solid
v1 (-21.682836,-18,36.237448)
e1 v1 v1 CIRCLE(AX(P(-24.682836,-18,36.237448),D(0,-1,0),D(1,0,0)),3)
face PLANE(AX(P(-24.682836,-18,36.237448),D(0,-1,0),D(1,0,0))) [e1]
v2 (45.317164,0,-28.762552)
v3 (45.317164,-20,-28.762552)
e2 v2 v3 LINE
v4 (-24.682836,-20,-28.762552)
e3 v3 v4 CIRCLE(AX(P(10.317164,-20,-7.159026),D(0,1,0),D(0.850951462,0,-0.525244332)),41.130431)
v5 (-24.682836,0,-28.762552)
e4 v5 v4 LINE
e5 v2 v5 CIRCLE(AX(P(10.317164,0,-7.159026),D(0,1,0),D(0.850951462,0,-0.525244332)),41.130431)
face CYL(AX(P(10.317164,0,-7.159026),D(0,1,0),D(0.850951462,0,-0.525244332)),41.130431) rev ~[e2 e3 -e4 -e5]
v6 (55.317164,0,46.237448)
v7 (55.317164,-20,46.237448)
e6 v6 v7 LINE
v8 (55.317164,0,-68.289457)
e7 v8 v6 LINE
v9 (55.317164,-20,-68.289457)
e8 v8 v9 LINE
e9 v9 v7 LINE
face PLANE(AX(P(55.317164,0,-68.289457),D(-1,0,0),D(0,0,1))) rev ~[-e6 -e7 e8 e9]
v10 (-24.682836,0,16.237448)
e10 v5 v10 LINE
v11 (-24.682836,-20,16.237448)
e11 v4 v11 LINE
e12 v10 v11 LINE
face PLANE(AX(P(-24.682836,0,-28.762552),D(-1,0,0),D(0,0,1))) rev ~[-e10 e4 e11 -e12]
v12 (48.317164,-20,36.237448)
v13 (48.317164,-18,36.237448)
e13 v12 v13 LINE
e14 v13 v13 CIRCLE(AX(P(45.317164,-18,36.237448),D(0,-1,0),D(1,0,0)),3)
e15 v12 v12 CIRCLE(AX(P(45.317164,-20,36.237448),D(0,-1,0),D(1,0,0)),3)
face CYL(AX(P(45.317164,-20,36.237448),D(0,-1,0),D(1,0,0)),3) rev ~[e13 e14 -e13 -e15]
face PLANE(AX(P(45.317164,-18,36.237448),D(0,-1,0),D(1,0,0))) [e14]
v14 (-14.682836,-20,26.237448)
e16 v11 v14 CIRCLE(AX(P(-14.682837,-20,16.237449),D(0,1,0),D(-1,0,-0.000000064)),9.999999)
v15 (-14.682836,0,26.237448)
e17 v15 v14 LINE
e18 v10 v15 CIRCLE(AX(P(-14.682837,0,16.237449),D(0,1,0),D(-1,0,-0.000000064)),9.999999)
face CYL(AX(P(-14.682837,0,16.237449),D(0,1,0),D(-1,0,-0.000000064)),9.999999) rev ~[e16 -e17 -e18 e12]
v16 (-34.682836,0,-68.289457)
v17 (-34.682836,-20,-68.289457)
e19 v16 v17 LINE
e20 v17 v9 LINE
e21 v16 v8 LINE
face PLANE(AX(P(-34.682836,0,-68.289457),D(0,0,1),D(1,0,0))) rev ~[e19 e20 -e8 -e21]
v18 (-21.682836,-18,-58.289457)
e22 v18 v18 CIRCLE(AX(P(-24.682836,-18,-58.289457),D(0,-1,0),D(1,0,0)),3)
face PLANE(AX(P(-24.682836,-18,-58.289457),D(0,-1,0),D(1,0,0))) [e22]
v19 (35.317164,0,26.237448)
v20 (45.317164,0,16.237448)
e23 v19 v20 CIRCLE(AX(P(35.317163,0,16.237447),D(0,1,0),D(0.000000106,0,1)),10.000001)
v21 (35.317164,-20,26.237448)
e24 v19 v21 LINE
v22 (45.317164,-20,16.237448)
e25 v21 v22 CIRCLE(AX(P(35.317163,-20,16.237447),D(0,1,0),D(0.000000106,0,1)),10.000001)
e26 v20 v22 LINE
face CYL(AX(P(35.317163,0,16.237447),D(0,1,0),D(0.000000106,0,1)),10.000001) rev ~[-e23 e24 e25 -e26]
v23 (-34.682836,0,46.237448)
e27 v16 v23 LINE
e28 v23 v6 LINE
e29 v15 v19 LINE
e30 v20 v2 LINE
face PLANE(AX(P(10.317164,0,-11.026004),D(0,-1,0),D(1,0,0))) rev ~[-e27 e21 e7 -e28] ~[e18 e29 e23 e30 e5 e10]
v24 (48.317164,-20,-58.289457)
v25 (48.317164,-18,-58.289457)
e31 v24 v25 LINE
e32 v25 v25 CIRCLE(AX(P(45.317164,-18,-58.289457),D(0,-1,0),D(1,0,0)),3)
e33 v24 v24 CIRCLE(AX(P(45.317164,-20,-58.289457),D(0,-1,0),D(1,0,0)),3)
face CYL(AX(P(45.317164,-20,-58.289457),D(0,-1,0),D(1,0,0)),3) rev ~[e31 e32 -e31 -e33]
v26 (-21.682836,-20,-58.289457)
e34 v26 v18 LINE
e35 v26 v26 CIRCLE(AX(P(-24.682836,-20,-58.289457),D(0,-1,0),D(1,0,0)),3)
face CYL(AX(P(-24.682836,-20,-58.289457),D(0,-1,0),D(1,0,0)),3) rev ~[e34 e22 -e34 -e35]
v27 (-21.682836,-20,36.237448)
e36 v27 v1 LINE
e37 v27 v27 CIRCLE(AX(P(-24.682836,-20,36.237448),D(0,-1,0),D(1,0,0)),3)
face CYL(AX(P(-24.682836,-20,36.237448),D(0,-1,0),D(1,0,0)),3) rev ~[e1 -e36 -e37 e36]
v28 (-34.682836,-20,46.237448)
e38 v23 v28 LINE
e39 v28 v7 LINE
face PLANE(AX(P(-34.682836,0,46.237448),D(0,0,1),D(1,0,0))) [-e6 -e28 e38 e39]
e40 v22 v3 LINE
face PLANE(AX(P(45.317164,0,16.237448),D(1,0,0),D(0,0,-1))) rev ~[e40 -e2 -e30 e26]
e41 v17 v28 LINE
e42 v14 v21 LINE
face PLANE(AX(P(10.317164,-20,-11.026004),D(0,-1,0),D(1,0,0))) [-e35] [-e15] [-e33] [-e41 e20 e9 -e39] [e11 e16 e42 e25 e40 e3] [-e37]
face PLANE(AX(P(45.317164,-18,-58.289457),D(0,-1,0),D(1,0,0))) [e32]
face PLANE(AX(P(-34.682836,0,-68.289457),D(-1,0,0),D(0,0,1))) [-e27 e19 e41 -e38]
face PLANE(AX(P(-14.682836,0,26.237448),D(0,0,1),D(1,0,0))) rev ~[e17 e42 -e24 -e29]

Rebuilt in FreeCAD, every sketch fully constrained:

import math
import FreeCAD as App
import Part
import Sketcher

doc = App.newDocument("Part")
params = doc.addObject("Spreadsheet::Sheet", "Params")
for row, (alias, value) in enumerate([
    ("sketch1_radius", "9.999999 mm"),
    ("sketch1_width", "90 mm"),
    ("sketch1_width2", "50 mm"),
    ("sketch1_height", "45 mm"),
    ("pad1_length", "20 mm"),
    ("sketch2_diameter", "6 mm"),
    ("pocket1_length", "2 mm"),
], start=1):
    params.set(f"A{row}", alias)
    params.set(f"B{row}", "=" + value)
    params.setAlias(f"B{row}", alias)

body = doc.addObject("PartDesign::Body", "Body")

# Sketch on XZ plane
sketch1 = doc.addObject("Sketcher::SketchObject", "Sketch")
body.addObject(sketch1)
sketch1.AttachmentSupport = (doc.XZ_Plane, [""])
sketch1.MapMode = "FlatFace"
sketch1.addGeometry([
    Part.LineSegment(App.Vector(-35, 46, 0), App.Vector(-35, -68, 0)),  # 0
    Part.LineSegment(App.Vector(-35, -68, 0), App.Vector(55, -68, 0)),  # 1
    Part.LineSegment(App.Vector(55, -68, 0), App.Vector(55, 46, 0)),  # 2
    Part.LineSegment(App.Vector(55, 46, 0), App.Vector(-35, 46, 0)),  # 3
    Part.LineSegment(App.Vector(-25, -29, 0), App.Vector(-25, 16, 0)),  # 4
    Part.ArcOfCircle(Part.Circle(App.Vector(-15, 16, 0), App.Vector(0, 0, 1), 10), math.radians(90), math.radians(180)),  # 5
    Part.LineSegment(App.Vector(-15, 26, 0), App.Vector(35, 26, 0)),  # 6
    Part.ArcOfCircle(Part.Circle(App.Vector(35, 16, 0), App.Vector(0, 0, 1), 10), math.radians(0), math.radians(90)),  # 7
    Part.LineSegment(App.Vector(45, 16, 0), App.Vector(45, -29, 0)),  # 8
    Part.ArcOfCircle(Part.Circle(App.Vector(10, -7, 0), App.Vector(0, 0, 1), 41), math.radians(-148), math.radians(-32)),  # 9
], False)
sketch1.addConstraint([
    Sketcher.Constraint("Coincident", 0, 2, 1, 1),
    Sketcher.Constraint("Coincident", 1, 2, 2, 1),
    Sketcher.Constraint("Coincident", 2, 2, 3, 1),
    Sketcher.Constraint("Coincident", 3, 2, 0, 1),
    Sketcher.Constraint("Tangent", 4, 2, 5, 2),
    Sketcher.Constraint("Tangent", 5, 1, 6, 1),
    Sketcher.Constraint("Tangent", 6, 2, 7, 2),
    Sketcher.Constraint("Tangent", 7, 1, 8, 1),
    Sketcher.Constraint("Coincident", 8, 2, 9, 2),
    Sketcher.Constraint("Coincident", 9, 1, 4, 1),
    Sketcher.Constraint("Vertical", 0),
    Sketcher.Constraint("Horizontal", 1),
    Sketcher.Constraint("Vertical", 2),
    Sketcher.Constraint("Horizontal", 3),
    Sketcher.Constraint("Vertical", 4),
    Sketcher.Constraint("Horizontal", 6),
    Sketcher.Constraint("Vertical", 8),
    Sketcher.Constraint("Equal", 5, 7),
    Sketcher.Constraint("Horizontal", 8, 2, 9, 1),
    Sketcher.Constraint("Radius", 5, 9.999999),
    Sketcher.Constraint("DistanceX", 1, 1, 1, 2, 90.0),
    Sketcher.Constraint("DistanceX", 6, 1, 6, 2, 50.0),
    Sketcher.Constraint("DistanceY", 4, 1, 4, 2, 45.0),
    Sketcher.Constraint("DistanceX", 0, 2, 9, 3, 45.0),
    Sketcher.Constraint("DistanceY", 7, 3, 2, 2, 30.000002),
    Sketcher.Constraint("Radius", 9, 41.130431),
    Sketcher.Constraint("DistanceY", 0, 2, 0, 1, 114.526905),
    Sketcher.Constraint("DistanceY", -1, 1, 5, 3, 16.237449),
    Sketcher.Constraint("DistanceX", 5, 3, -1, 1, 14.682837),
])
sketch1.setExpression("Constraints[19]", "Params.sketch1_radius")
sketch1.setExpression("Constraints[20]", "Params.sketch1_width")
sketch1.setExpression("Constraints[21]", "Params.sketch1_width2")
sketch1.setExpression("Constraints[22]", "Params.sketch1_height")
pad1 = doc.addObject("PartDesign::Pad", "Pad")
body.addObject(pad1)
pad1.Profile = sketch1
pad1.setExpression("Length", "Params.pad1_length")

# Sketch on XZ plane
sketch2 = doc.addObject("Sketcher::SketchObject", "Sketch001")
body.addObject(sketch2)
sketch2.AttachmentSupport = (doc.XZ_Plane, [""])
sketch2.MapMode = "FlatFace"
sketch2.AttachmentOffset = App.Placement(App.Vector(0, 0, 20), App.Rotation())
sketch2.addGeometry([
    Part.Circle(App.Vector(-24.7, 36.2, 0), App.Vector(0, 0, 1), 3),
    Part.Circle(App.Vector(45.3, 36.2, 0), App.Vector(0, 0, 1), 3),
    Part.Circle(App.Vector(-24.7, -58.3, 0), App.Vector(0, 0, 1), 3),
    Part.Circle(App.Vector(45.3, -58.3, 0), App.Vector(0, 0, 1), 3),
], False)
sketch2.addConstraint([
    Sketcher.Constraint("Equal", 0, 1),
    Sketcher.Constraint("Equal", 1, 2),
    Sketcher.Constraint("Equal", 2, 3),
    Sketcher.Constraint("Horizontal", 0, 3, 1, 3),
    Sketcher.Constraint("Horizontal", 2, 3, 3, 3),
    Sketcher.Constraint("Vertical", 0, 3, 2, 3),
    Sketcher.Constraint("Vertical", 1, 3, 3, 3),
    Sketcher.Constraint("Diameter", 0, 6.0),
    Sketcher.Constraint("DistanceX", 0, 3, 1, 3, 70.0),
    Sketcher.Constraint("DistanceX", 0, 3, -1, 1, 24.682836),
    Sketcher.Constraint("DistanceY", -1, 1, 0, 3, 36.237448),
    Sketcher.Constraint("DistanceY", 2, 3, -1, 1, 58.289457),
])
sketch2.setExpression("Constraints[7]", "Params.sketch2_diameter")
pocket1 = doc.addObject("PartDesign::Pocket", "Pocket")
body.addObject(pocket1)
pocket1.Profile = sketch2
pocket1.setExpression("Length", "Params.pocket1_length")

doc.recompute()
